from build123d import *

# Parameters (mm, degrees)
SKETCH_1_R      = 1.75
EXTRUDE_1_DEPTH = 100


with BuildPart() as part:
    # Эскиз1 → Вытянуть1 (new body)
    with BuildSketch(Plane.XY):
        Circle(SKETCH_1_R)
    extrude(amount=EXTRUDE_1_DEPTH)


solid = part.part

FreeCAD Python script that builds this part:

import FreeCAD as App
import Part
import Sketcher
from FreeCAD import Vector

doc = App.newDocument("Part")
params = doc.addObject("Spreadsheet::Sheet", "Params")
for row, (alias, value) in enumerate([
    ("sketch1_diameter", "3.5 mm"),
    ("pad1_length", "100 mm"),
], start=1):
    params.set(f"A{row}", alias)
    params.set(f"B{row}", "=" + value)
    params.setAlias(f"B{row}", alias)

body = doc.addObject("PartDesign::Body", "Body")

sketch1 = body.newObject("Sketcher::SketchObject", "Sketch")
sketch1.AttachmentSupport = (doc.getObject("XY_Plane"), [""])
sketch1.MapMode = "FlatFace"
sketch1.addGeometry(Part.Circle(Vector(0, 0, 0), Vector(0, 0, 1), 1.75), False)
sketch1.addConstraint(Sketcher.Constraint("Coincident", 0, 3, -1, 1))
sketch1.addConstraint(Sketcher.Constraint("Diameter", 0, 3.5))
sketch1.setExpression("Constraints[1]", "Params.sketch1_diameter")
pad1 = body.newObject("PartDesign::Pad", "Pad")
pad1.Profile = sketch1
pad1.setExpression("Length", "Params.pad1_length")

doc.recompute()
